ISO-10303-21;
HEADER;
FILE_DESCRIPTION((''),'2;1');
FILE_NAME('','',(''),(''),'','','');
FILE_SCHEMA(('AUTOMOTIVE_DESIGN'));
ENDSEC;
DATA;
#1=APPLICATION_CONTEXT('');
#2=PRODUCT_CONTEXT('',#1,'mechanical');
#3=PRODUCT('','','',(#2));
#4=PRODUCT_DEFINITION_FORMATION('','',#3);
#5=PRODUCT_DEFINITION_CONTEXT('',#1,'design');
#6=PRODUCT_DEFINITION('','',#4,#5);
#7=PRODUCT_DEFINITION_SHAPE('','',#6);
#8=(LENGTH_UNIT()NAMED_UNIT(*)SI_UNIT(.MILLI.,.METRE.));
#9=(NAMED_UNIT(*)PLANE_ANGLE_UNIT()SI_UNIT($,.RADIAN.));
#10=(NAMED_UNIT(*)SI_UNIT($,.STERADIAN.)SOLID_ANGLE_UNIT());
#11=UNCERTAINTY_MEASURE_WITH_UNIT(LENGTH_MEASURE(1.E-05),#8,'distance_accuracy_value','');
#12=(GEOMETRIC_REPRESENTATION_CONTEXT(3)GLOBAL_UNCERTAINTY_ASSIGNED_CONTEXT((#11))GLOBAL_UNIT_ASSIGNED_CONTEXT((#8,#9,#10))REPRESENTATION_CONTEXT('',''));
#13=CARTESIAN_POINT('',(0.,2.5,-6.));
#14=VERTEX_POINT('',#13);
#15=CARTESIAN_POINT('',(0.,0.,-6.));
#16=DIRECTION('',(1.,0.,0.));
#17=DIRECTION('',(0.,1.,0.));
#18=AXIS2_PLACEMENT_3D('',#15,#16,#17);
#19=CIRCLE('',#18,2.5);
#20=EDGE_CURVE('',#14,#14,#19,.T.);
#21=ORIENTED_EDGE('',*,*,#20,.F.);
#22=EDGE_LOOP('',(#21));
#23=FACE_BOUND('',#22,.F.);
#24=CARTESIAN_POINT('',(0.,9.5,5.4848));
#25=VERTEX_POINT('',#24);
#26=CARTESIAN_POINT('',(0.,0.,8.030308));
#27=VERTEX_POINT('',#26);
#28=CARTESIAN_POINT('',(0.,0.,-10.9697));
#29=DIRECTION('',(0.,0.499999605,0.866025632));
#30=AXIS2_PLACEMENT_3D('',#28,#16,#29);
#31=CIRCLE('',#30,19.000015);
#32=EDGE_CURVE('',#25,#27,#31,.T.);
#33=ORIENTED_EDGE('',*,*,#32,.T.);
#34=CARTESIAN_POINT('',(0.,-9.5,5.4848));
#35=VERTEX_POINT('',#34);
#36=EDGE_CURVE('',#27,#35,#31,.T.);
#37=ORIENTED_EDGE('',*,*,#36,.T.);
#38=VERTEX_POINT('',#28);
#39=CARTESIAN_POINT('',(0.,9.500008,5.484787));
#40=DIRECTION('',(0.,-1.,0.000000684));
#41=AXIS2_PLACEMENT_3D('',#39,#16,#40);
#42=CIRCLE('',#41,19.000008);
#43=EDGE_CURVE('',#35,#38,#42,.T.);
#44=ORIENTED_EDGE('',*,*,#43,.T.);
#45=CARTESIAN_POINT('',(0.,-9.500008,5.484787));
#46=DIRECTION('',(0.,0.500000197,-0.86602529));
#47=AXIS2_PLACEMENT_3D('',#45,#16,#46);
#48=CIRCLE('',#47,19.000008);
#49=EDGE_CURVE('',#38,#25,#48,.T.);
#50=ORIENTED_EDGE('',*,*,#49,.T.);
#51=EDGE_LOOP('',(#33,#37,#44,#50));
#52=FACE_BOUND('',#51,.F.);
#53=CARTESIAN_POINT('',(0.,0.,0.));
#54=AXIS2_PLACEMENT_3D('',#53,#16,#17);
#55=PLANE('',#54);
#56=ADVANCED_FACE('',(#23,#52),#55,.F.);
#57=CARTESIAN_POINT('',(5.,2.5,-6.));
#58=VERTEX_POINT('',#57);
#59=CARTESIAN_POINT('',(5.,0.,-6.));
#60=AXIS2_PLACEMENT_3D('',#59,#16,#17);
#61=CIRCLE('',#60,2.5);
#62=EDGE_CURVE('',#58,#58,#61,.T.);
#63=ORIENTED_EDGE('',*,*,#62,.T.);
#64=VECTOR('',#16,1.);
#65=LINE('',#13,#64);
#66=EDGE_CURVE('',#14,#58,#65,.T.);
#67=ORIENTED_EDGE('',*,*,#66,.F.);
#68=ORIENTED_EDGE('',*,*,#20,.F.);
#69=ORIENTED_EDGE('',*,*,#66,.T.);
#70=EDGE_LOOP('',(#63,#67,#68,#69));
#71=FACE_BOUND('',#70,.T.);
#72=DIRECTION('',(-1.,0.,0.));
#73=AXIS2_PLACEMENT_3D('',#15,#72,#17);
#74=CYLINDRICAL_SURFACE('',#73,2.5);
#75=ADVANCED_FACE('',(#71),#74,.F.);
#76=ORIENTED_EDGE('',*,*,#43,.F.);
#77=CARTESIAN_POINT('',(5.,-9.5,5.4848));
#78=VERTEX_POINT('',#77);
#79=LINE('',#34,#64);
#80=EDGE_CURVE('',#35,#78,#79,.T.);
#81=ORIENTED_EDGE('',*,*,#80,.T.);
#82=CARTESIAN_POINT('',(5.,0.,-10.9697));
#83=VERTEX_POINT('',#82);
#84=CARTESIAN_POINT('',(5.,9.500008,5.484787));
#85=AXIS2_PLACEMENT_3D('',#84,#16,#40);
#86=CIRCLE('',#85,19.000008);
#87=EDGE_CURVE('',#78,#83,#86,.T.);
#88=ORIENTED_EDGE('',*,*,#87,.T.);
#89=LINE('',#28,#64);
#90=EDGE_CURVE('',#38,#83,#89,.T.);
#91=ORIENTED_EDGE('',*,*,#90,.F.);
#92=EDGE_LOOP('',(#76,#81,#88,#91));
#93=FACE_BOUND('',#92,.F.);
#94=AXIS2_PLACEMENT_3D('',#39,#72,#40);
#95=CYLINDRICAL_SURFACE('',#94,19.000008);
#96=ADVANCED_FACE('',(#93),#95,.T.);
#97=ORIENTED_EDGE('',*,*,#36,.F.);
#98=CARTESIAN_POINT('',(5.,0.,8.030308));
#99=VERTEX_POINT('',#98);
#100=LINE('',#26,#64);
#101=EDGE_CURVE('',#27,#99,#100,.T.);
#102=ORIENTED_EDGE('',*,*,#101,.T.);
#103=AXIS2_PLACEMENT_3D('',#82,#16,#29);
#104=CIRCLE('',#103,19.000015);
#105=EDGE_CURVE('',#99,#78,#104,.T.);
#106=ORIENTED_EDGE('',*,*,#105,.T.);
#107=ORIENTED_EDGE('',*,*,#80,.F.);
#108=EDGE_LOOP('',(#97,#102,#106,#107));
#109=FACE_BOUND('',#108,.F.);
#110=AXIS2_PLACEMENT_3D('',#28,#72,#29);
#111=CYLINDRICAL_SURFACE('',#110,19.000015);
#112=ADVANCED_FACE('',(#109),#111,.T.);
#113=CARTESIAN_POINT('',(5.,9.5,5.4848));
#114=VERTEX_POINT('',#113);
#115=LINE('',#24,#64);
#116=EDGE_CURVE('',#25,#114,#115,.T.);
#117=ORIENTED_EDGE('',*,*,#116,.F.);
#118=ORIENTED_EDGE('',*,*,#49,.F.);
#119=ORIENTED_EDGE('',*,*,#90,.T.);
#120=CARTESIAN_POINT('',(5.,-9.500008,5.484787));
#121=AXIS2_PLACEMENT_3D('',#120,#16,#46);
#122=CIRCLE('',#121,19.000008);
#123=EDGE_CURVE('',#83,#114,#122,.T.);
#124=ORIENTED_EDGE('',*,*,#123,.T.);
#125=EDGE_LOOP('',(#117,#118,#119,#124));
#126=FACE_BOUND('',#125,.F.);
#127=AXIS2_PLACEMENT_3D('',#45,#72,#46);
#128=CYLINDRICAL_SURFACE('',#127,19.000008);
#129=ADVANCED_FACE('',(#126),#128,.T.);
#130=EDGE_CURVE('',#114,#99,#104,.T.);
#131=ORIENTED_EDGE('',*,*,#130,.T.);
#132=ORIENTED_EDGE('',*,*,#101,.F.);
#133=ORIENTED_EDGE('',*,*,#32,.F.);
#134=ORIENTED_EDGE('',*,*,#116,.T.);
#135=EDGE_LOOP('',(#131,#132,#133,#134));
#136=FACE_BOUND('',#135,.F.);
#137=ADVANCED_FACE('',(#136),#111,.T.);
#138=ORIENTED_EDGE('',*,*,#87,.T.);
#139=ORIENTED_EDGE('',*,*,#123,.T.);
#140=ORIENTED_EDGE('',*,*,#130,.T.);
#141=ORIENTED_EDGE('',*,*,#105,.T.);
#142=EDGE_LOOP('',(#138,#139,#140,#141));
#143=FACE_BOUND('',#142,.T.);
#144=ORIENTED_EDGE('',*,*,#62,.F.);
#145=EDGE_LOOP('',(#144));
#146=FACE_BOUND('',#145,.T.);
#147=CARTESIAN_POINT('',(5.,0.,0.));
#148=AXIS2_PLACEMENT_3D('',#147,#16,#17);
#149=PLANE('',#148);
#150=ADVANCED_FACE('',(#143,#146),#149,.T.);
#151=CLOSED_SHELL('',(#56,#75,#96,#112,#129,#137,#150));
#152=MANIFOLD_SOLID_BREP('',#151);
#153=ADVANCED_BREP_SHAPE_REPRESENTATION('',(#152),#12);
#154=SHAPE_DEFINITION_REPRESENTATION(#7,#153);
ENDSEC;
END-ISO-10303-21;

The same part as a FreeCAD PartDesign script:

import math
import FreeCAD as App
import Part
import Sketcher

V = App.Vector
Q = App.Units.Quantity

doc = App.newDocument("Part")
body = doc.addObject("PartDesign::Body", "Body")

sketch1 = body.newObject("Sketcher::SketchObject", "Sketch")
sketch1.AttachmentSupport = (doc.getObject("YZ_Plane"), [""])
sketch1.MapMode = "FlatFace"
sketch1.addGeometry([
    Part.ArcOfCircle(Part.Circle(V(9.5, 5.5, 0), V(0, 0, 1), 19), math.radians(180), math.radians(240)),
    Part.ArcOfCircle(Part.Circle(V(-9.5, 5.5, 0), V(0, 0, 1), 19), math.radians(-60), math.radians(0)),
    Part.ArcOfCircle(Part.Circle(V(0, -11, 0), V(0, 0, 1), 19), math.radians(60), math.radians(120)),
    Part.Circle(V(0, -6, 0), V(0, 0, 1), 2.5),
], False)
sketch1.addConstraint([
    Sketcher.Constraint("Coincident", 0, 2, 1, 1),
    Sketcher.Constraint("Coincident", 1, 2, 2, 1),
    Sketcher.Constraint("Coincident", 2, 2, 0, 1),
    Sketcher.Constraint("Coincident", 0, 2, 2, 3),
    Sketcher.Constraint("Coincident", 1, 2, 0, 3),
    Sketcher.Constraint("Equal", 0, 1),
    Sketcher.Constraint("Symmetric", 0, 3, 1, 3, -2),
    Sketcher.Constraint("PointOnObject", 3, 3, -2),
    Sketcher.Constraint("Diameter", 3, Q("5 mm")),
    Sketcher.Constraint("Radius", 0, Q("19 mm")),
    Sketcher.Constraint("DistanceY", 3, 3, -1, 1, Q("6 mm")),
    Sketcher.Constraint("DistanceY", -1, 1, 0, 3, Q("5.4848 mm")),
])
pad1 = body.newObject("PartDesign::Pad", "Pad")
pad1.Profile = sketch1
pad1.Length = 5

doc.recompute()
